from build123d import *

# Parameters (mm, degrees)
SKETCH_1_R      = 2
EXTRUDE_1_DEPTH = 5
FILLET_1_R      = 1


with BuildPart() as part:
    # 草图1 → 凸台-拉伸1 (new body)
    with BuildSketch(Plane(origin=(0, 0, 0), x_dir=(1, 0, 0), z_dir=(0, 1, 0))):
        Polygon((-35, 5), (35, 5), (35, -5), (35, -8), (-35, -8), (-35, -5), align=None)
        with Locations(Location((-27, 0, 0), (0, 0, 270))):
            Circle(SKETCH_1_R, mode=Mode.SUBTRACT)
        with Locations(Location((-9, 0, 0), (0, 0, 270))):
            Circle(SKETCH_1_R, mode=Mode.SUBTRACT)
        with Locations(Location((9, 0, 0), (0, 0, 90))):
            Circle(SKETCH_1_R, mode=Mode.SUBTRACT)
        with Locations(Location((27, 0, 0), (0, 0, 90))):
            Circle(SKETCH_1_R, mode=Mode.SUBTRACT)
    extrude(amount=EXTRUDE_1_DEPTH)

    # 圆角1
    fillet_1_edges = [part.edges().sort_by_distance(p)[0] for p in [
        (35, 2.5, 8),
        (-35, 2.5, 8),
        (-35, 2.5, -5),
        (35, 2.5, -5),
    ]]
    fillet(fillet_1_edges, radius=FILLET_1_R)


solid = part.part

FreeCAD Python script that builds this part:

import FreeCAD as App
import Part
import Sketcher
from FreeCAD import Vector


def edges_at(feature, points):
    """Names of the edges that pass closest to the given points."""
    edges = feature.Shape.Edges
    near = lambda p: min(range(len(edges)), key=lambda i: edges[i].distToShape(Part.Vertex(*p))[0])
    return sorted({f"Edge{near(p) + 1}" for p in points})

doc = App.newDocument("Part")
params = doc.addObject("Spreadsheet::Sheet", "Params")
for row, (alias, value) in enumerate([
    ("sketch1_diameter", "4 mm"),
    ("sketch1_width", "70 mm"),
    ("sketch1_height", "13 mm"),
    ("pad1_length", "5 mm"),
    ("fillet_radius", "1 mm"),
], start=1):
    params.set(f"A{row}", alias)
    params.set(f"B{row}", "=" + value)
    params.setAlias(f"B{row}", alias)

body = doc.addObject("PartDesign::Body", "Body")

# Sketch on XZ plane
sketch1 = body.newObject("Sketcher::SketchObject", "Sketch")
sketch1.AttachmentSupport = (doc.getObject("XZ_Plane"), [""])
sketch1.MapMode = "FlatFace"
sketch1.addGeometry([
    Part.LineSegment(Vector(35, -5, 0), Vector(-35, -5, 0)),  # 0
    Part.LineSegment(Vector(-35, -5, 0), Vector(-35, 8, 0)),  # 1
    Part.LineSegment(Vector(-35, 8, 0), Vector(35, 8, 0)),  # 2
    Part.LineSegment(Vector(35, 8, 0), Vector(35, -5, 0)),  # 3
    Part.Circle(Vector(27, 0, 0), Vector(0, 0, 1), 2),  # 4
    Part.Circle(Vector(9, 0, 0), Vector(0, 0, 1), 2),  # 5
    Part.Circle(Vector(-9, 0, 0), Vector(0, 0, 1), 2),  # 6
    Part.Circle(Vector(-27, 0, 0), Vector(0, 0, 1), 2),  # 7
], False)
sketch1.addConstraint([
    Sketcher.Constraint("Coincident", 0, 2, 1, 1),
    Sketcher.Constraint("Coincident", 1, 2, 2, 1),
    Sketcher.Constraint("Coincident", 2, 2, 3, 1),
    Sketcher.Constraint("Coincident", 3, 2, 0, 1),
    Sketcher.Constraint("Horizontal", 0),
    Sketcher.Constraint("Vertical", 1),
    Sketcher.Constraint("Horizontal", 2),
    Sketcher.Constraint("Vertical", 3),
    Sketcher.Constraint("Equal", 4, 5),
    Sketcher.Constraint("Equal", 5, 6),
    Sketcher.Constraint("Equal", 6, 7),
    Sketcher.Constraint("Symmetric", 5, 3, 6, 3, -1, 1),
    Sketcher.Constraint("Symmetric", 4, 3, 7, 3, -1, 1),
    Sketcher.Constraint("PointOnObject", 4, 3, -1),
    Sketcher.Constraint("PointOnObject", 5, 3, -1),
    Sketcher.Constraint("Diameter", 4, 4.0),
    Sketcher.Constraint("DistanceX", 0, 2, 0, 1, 70.0),
    Sketcher.Constraint("DistanceY", 1, 1, 1, 2, 13.0),
    Sketcher.Constraint("DistanceX", -1, 1, 4, 3, 27.0),
    Sketcher.Constraint("DistanceX", -1, 1, 5, 3, 9.0),
    Sketcher.Constraint("DistanceX", 0, 2, -1, 1, 35.0),
    Sketcher.Constraint("DistanceY", 0, 2, -1, 1, 5.0),
])
sketch1.setExpression("Constraints[15]", "Params.sketch1_diameter")
sketch1.setExpression("Constraints[16]", "Params.sketch1_width")
sketch1.setExpression("Constraints[17]", "Params.sketch1_height")
pad1 = body.newObject("PartDesign::Pad", "Pad")
pad1.Profile = sketch1
pad1.setExpression("Length", "Params.pad1_length")
pad1.Reversed = True
doc.recompute()

fillet = body.newObject("PartDesign::Fillet", "Fillet")
fillet.Base = (pad1, edges_at(pad1, [
    (35, 2.5, 8),
    (-35, 2.5, 8),
    (-35, 2.5, -5),
    (35, 2.5, -5),
]))
fillet.setExpression("Radius", "Params.fillet_radius")

doc.recompute()
